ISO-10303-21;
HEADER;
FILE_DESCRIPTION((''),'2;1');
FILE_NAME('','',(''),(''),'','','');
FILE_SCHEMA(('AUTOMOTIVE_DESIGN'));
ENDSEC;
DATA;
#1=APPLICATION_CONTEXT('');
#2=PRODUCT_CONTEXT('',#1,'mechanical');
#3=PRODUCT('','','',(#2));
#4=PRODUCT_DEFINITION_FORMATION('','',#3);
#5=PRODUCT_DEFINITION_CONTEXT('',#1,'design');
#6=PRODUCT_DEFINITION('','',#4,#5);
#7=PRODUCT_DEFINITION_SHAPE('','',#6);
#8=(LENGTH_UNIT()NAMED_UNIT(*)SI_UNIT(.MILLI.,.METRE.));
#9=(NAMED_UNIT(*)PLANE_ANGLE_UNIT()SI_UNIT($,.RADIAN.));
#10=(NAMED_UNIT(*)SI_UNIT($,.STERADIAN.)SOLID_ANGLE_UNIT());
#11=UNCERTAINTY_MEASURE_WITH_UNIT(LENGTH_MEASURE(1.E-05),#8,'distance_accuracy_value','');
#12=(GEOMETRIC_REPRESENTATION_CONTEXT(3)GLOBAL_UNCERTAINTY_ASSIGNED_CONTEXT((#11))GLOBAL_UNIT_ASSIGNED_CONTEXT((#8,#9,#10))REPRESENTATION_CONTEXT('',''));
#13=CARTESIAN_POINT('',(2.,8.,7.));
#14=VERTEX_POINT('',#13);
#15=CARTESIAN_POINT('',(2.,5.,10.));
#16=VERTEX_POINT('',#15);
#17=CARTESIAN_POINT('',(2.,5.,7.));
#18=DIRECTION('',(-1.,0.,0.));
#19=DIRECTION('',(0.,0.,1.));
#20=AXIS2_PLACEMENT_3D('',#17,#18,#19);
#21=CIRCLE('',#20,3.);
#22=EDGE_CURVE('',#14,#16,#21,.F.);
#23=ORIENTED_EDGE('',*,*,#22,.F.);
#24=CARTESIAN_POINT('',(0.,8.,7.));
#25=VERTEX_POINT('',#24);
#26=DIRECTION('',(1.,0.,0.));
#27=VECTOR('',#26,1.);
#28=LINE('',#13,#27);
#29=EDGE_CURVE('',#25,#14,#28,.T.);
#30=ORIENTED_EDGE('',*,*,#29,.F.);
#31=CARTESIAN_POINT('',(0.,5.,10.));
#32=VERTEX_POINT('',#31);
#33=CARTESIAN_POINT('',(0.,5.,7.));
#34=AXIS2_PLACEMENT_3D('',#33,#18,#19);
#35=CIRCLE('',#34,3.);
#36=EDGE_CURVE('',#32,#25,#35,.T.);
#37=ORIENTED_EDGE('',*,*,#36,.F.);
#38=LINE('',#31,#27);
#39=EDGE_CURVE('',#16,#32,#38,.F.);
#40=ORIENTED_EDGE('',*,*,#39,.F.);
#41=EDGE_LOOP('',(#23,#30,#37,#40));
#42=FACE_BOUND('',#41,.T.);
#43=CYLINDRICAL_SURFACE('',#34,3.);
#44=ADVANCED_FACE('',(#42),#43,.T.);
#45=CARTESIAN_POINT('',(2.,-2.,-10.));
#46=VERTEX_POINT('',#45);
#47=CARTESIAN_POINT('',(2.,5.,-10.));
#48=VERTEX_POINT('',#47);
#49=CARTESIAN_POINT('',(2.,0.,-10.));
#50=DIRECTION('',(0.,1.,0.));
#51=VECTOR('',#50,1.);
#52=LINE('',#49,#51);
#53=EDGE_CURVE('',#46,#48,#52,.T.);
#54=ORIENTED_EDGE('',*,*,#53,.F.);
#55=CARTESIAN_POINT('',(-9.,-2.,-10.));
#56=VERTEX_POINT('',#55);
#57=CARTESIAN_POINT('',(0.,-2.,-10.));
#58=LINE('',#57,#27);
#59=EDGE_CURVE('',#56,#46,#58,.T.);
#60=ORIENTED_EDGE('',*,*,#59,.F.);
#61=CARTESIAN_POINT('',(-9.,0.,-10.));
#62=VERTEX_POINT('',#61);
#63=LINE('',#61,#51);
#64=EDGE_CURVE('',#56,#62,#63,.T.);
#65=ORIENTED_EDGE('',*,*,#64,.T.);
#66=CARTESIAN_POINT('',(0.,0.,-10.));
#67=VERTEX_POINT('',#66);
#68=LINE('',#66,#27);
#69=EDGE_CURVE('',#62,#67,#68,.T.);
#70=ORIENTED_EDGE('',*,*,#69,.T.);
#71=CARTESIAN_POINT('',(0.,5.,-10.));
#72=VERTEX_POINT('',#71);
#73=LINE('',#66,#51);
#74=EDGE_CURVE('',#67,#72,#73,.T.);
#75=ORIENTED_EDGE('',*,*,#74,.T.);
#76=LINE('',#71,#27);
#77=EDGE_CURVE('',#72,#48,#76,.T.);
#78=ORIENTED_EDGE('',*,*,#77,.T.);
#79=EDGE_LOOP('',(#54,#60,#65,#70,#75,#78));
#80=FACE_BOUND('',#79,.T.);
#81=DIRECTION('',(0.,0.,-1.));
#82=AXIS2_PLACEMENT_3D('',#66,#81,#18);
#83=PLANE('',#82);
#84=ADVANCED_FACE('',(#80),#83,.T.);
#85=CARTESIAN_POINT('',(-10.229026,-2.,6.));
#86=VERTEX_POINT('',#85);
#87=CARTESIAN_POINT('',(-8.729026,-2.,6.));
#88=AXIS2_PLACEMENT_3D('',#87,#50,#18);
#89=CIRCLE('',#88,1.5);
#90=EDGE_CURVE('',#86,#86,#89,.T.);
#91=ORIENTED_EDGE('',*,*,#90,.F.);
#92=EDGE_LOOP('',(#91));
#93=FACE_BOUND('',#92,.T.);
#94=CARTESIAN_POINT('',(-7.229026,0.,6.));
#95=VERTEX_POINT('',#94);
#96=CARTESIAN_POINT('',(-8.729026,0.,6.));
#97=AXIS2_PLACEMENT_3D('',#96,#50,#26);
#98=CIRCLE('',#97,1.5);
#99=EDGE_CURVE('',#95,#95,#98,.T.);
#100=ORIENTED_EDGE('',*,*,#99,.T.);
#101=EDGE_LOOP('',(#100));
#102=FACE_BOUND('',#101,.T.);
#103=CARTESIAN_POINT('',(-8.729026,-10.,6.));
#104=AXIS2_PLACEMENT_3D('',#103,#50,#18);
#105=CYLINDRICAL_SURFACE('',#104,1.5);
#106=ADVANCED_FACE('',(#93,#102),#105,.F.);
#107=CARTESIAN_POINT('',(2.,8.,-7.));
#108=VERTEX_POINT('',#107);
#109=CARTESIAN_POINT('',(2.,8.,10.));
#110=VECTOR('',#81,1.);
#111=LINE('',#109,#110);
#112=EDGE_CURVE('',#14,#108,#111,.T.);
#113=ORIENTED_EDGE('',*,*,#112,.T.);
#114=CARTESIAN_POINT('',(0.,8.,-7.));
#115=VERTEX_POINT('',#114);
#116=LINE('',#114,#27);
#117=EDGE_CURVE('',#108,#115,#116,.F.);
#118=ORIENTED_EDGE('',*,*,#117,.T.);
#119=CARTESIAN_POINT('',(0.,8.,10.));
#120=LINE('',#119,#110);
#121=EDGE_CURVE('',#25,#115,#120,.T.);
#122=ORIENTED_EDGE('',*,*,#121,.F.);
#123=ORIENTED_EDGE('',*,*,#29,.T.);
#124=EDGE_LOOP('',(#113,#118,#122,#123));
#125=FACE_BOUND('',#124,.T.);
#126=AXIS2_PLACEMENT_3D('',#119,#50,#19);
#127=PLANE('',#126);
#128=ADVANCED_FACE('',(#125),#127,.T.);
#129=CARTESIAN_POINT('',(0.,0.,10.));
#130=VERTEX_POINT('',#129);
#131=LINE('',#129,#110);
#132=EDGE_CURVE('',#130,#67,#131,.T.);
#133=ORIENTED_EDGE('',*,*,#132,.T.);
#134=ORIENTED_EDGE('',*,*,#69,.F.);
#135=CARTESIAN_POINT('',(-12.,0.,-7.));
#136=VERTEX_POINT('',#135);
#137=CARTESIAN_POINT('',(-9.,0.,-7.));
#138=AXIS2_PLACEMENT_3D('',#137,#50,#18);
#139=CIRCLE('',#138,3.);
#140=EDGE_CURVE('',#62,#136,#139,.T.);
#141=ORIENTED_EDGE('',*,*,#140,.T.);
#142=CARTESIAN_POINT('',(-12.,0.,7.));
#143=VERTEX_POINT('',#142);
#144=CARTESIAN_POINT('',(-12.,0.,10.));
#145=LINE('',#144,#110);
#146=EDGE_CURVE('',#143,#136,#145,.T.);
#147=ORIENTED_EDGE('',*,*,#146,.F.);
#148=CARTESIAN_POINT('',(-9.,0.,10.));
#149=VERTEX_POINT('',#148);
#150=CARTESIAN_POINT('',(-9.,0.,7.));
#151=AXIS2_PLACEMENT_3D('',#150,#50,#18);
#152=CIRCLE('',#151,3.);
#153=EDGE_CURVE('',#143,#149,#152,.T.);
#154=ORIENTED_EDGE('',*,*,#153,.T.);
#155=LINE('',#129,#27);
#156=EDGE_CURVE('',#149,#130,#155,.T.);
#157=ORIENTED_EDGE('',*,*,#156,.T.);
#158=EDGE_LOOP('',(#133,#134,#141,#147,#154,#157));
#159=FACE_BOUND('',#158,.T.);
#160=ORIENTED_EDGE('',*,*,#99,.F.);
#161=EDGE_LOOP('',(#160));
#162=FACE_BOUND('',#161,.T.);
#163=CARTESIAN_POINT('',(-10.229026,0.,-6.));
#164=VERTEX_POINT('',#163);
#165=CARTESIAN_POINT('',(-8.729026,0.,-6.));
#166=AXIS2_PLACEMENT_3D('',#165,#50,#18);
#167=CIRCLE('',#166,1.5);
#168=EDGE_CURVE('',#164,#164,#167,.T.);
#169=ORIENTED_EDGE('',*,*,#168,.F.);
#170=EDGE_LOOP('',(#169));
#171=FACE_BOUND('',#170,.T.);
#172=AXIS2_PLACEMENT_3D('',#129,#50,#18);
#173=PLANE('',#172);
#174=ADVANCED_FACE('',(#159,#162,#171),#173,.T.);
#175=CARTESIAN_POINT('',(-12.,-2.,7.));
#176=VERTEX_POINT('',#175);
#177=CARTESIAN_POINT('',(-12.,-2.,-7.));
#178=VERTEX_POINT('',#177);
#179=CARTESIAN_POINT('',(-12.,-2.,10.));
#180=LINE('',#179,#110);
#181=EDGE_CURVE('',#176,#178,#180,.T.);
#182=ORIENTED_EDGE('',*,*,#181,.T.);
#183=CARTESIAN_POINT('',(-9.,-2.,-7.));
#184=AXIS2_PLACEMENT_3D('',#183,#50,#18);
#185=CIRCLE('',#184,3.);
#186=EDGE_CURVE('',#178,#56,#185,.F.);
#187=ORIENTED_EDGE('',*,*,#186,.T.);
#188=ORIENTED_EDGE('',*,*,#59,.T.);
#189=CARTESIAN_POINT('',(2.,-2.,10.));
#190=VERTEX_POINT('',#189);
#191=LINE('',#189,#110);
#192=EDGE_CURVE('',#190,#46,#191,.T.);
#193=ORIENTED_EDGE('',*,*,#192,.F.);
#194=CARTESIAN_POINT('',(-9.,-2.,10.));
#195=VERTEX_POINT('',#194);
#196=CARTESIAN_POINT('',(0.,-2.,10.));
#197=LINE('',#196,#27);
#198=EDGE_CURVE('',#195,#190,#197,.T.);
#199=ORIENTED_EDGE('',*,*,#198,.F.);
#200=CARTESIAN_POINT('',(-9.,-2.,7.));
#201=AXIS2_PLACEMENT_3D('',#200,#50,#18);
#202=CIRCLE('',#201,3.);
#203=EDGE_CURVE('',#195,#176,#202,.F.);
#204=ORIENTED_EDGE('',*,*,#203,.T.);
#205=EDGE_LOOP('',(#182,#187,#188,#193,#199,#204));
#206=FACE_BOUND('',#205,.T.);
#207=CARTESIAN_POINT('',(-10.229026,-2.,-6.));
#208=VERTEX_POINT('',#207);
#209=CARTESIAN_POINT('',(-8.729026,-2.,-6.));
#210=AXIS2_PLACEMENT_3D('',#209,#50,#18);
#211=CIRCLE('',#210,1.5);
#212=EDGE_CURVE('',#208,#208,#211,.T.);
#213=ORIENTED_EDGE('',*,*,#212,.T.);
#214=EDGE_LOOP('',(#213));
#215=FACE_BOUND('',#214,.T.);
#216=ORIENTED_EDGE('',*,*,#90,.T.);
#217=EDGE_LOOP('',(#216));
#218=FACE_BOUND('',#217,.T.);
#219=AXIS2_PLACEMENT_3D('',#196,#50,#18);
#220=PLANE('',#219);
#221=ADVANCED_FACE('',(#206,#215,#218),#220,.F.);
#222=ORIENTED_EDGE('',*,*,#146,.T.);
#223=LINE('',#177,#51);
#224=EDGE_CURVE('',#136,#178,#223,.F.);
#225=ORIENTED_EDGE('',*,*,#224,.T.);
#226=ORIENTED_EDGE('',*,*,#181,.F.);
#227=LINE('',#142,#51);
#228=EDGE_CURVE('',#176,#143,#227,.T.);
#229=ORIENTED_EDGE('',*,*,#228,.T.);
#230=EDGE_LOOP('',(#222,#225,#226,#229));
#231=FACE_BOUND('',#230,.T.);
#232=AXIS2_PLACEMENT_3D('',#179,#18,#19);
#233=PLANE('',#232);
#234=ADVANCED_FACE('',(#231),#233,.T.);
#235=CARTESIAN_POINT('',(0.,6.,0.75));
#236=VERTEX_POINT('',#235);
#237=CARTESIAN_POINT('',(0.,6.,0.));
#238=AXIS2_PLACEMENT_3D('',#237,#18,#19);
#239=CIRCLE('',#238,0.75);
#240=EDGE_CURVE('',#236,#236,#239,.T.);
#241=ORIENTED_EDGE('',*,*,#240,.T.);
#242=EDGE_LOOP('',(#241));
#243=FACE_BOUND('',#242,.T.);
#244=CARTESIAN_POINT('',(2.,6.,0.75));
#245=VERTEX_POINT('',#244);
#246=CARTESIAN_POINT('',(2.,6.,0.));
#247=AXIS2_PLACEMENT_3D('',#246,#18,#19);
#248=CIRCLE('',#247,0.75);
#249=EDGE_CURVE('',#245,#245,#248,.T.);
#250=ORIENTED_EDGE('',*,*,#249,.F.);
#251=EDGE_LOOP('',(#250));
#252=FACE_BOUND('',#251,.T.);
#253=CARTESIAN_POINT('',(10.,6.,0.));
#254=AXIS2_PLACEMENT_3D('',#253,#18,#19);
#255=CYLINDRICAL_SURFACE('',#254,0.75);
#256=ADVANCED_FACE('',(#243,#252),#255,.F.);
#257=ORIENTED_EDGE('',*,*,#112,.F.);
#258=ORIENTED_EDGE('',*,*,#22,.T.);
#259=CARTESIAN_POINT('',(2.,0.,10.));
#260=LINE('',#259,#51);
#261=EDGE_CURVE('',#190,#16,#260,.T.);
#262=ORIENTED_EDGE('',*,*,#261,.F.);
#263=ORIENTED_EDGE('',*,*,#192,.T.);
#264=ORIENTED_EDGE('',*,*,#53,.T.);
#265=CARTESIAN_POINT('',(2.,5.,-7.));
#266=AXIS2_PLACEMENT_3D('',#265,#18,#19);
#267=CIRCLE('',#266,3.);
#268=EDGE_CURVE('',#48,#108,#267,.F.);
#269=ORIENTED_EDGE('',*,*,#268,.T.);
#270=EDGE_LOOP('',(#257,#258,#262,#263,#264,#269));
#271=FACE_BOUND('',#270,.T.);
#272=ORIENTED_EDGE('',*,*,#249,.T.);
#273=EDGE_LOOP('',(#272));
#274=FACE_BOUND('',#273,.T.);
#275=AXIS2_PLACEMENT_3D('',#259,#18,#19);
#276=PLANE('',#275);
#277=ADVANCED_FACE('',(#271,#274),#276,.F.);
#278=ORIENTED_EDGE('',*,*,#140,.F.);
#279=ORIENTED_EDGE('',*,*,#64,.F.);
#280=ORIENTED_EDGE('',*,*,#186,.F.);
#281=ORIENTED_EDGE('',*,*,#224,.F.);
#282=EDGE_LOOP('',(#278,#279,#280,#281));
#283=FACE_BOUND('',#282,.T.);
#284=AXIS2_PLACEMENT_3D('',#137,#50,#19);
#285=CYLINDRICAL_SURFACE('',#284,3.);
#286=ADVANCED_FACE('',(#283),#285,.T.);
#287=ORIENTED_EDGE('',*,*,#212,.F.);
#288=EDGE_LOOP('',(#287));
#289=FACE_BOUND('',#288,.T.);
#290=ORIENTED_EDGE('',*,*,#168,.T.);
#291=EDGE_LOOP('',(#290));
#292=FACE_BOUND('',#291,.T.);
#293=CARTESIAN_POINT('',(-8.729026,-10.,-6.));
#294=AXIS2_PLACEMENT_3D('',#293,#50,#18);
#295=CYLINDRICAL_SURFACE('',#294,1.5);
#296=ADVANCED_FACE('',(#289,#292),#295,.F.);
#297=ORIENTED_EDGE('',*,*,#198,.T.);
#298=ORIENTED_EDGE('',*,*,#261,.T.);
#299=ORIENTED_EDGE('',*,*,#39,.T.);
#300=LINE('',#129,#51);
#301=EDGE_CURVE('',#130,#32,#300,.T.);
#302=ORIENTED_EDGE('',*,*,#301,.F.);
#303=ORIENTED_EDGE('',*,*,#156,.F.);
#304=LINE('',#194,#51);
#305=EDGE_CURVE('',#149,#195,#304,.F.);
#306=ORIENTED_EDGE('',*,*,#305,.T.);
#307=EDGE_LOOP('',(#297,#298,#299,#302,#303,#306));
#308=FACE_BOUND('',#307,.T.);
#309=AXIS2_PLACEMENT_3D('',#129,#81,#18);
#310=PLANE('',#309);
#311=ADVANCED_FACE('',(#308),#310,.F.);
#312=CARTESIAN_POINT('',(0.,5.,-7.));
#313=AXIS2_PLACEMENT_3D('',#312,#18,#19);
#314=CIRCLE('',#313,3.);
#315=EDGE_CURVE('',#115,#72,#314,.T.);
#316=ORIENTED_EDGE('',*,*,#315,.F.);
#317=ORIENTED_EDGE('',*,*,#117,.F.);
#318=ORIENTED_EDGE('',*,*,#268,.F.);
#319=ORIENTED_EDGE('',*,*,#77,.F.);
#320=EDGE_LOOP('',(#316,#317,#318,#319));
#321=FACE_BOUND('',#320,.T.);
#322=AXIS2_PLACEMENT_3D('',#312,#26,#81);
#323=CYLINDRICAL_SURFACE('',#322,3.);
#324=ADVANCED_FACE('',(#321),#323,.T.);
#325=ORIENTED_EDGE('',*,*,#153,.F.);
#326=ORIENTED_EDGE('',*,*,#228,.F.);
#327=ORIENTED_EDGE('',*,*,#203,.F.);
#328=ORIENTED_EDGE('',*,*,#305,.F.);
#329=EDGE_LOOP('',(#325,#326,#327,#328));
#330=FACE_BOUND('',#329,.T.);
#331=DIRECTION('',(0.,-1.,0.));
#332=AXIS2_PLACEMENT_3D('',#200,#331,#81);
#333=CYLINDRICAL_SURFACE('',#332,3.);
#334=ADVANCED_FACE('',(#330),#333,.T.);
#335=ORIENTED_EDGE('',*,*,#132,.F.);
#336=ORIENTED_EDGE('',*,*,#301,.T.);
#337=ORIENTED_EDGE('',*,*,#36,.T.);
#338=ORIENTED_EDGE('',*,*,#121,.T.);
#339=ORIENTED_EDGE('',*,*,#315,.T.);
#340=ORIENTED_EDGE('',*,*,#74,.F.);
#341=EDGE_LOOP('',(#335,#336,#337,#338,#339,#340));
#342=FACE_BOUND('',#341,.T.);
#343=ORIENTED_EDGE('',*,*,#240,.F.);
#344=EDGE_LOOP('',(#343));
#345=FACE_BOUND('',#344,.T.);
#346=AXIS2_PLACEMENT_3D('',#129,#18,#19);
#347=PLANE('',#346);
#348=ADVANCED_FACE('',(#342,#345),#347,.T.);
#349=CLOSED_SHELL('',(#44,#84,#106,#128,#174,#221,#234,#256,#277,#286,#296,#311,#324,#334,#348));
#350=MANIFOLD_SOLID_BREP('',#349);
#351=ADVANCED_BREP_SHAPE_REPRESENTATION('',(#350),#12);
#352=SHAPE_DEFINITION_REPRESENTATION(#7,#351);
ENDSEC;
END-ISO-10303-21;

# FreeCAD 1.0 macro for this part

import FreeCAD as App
import Part
import Sketcher
from FreeCAD import Vector


def edges_at(feature, points):
    """Names of the edges that pass closest to the given points."""
    edges = feature.Shape.Edges
    near = lambda p: min(range(len(edges)), key=lambda i: edges[i].distToShape(Part.Vertex(*p))[0])
    return sorted({f"Edge{near(p) + 1}" for p in points})

doc = App.newDocument("Part")
params = doc.addObject("Spreadsheet::Sheet", "Params")
for row, (alias, value) in enumerate([
    ("sketch1_width", "12 mm"),
    ("sketch1_width2", "14 mm"),
    ("sketch1_height", "8 mm"),
    ("pad1_length", "20 mm"),
    ("fillet_radius", "3 mm"),
    ("sketch2_diameter", "3 mm"),
    ("pocket1_length", "10 mm"),
    ("sketch3_diameter", "1.5 mm"),
    ("pocket2_length", "10 mm"),
], start=1):
    params.set(f"A{row}", alias)
    params.set(f"B{row}", "=" + value)
    params.setAlias(f"B{row}", alias)

body = doc.addObject("PartDesign::Body", "Body")

sketch1 = doc.addObject("Sketcher::SketchObject", "Sketch")
body.addObject(sketch1)
sketch1.AttachmentSupport = (doc.XY_Plane, [""])
sketch1.MapMode = "FlatFace"
sketch1.addGeometry([
    Part.LineSegment(Vector(0, 8, 0), Vector(0, 0, 0)),
    Part.LineSegment(Vector(0, 0, 0), Vector(-12, 0, 0)),
    Part.LineSegment(Vector(-12, 0, 0), Vector(-12, -2, 0)),
    Part.LineSegment(Vector(-12, -2, 0), Vector(2, -2, 0)),
    Part.LineSegment(Vector(2, -2, 0), Vector(2, 8, 0)),
    Part.LineSegment(Vector(2, 8, 0), Vector(0, 8, 0)),
], False)
sketch1.addConstraint([
    Sketcher.Constraint("Coincident", 0, 2, 1, 1),
    Sketcher.Constraint("Coincident", 1, 2, 2, 1),
    Sketcher.Constraint("Coincident", 2, 2, 3, 1),
    Sketcher.Constraint("Coincident", 3, 2, 4, 1),
    Sketcher.Constraint("Coincident", 4, 2, 5, 1),
    Sketcher.Constraint("Coincident", 5, 2, 0, 1),
    Sketcher.Constraint("Vertical", 0),
    Sketcher.Constraint("Horizontal", 1),
    Sketcher.Constraint("Vertical", 2),
    Sketcher.Constraint("Horizontal", 3),
    Sketcher.Constraint("Vertical", 4),
    Sketcher.Constraint("Horizontal", 5),
    Sketcher.Constraint("Coincident", 0, 2, -1, 1),
    Sketcher.Constraint("Equal", 5, 2),
    Sketcher.Constraint("DistanceX", 1, 2, 1, 1, 12.0),
    Sketcher.Constraint("DistanceX", 3, 1, 3, 2, 14.0),
    Sketcher.Constraint("DistanceY", 0, 2, 0, 1, 8.0),
])
sketch1.setExpression("Constraints[14]", "Params.sketch1_width")
sketch1.setExpression("Constraints[15]", "Params.sketch1_width2")
sketch1.setExpression("Constraints[16]", "Params.sketch1_height")
pad1 = doc.addObject("PartDesign::Pad", "Pad")
body.addObject(pad1)
pad1.Profile = sketch1
pad1.setExpression("Length", "Params.pad1_length")
pad1.Midplane = True
doc.recompute()

fillet = doc.addObject("PartDesign::Fillet", "Fillet")
body.addObject(fillet)
fillet.Base = (pad1, edges_at(pad1, [
    (-12, -1, 10),
    (-12, -1, -10),
    (1, 8, -10),
    (1, 8, 10),
]))
fillet.setExpression("Radius", "Params.fillet_radius")

sketch2 = doc.addObject("Sketcher::SketchObject", "Sketch001")
body.addObject(sketch2)
sketch2.AttachmentSupport = (doc.XZ_Plane, [""])
sketch2.MapMode = "FlatFace"
sketch2.addGeometry([
    Part.Circle(Vector(-8.7, -6, 0), Vector(0, 0, 1), 1.5),
    Part.Circle(Vector(-8.7, 6, 0), Vector(0, 0, 1), 1.5),
], False)
sketch2.addConstraint([
    Sketcher.Constraint("Equal", 0, 1),
    Sketcher.Constraint("Symmetric", 0, 3, 1, 3, -1),
    Sketcher.Constraint("Diameter", 0, 3.0),
    Sketcher.Constraint("DistanceY", 0, 3, -1, 1, 6.0),
    Sketcher.Constraint("DistanceX", 0, 3, -1, 1, 8.729026),
])
sketch2.setExpression("Constraints[2]", "Params.sketch2_diameter")
pocket1 = doc.addObject("PartDesign::Pocket", "Pocket")
body.addObject(pocket1)
pocket1.Profile = sketch2
pocket1.setExpression("Length", "Params.pocket1_length")
pocket1.Reversed = True

sketch3 = doc.addObject("Sketcher::SketchObject", "Sketch002")
body.addObject(sketch3)
sketch3.AttachmentSupport = (doc.YZ_Plane, [""])
sketch3.MapMode = "FlatFace"
sketch3.addGeometry(Part.Circle(Vector(6, 0, 0), Vector(0, 0, 1), 0.8), False)
sketch3.addConstraint([
    Sketcher.Constraint("PointOnObject", 0, 3, -1),
    Sketcher.Constraint("Diameter", 0, 1.5),
    Sketcher.Constraint("DistanceX", -1, 1, 0, 3, 6.0),
])
sketch3.setExpression("Constraints[1]", "Params.sketch3_diameter")
pocket2 = doc.addObject("PartDesign::Pocket", "Pocket001")
body.addObject(pocket2)
pocket2.Profile = sketch3
pocket2.setExpression("Length", "Params.pocket2_length")
pocket2.Reversed = True

doc.recompute()
